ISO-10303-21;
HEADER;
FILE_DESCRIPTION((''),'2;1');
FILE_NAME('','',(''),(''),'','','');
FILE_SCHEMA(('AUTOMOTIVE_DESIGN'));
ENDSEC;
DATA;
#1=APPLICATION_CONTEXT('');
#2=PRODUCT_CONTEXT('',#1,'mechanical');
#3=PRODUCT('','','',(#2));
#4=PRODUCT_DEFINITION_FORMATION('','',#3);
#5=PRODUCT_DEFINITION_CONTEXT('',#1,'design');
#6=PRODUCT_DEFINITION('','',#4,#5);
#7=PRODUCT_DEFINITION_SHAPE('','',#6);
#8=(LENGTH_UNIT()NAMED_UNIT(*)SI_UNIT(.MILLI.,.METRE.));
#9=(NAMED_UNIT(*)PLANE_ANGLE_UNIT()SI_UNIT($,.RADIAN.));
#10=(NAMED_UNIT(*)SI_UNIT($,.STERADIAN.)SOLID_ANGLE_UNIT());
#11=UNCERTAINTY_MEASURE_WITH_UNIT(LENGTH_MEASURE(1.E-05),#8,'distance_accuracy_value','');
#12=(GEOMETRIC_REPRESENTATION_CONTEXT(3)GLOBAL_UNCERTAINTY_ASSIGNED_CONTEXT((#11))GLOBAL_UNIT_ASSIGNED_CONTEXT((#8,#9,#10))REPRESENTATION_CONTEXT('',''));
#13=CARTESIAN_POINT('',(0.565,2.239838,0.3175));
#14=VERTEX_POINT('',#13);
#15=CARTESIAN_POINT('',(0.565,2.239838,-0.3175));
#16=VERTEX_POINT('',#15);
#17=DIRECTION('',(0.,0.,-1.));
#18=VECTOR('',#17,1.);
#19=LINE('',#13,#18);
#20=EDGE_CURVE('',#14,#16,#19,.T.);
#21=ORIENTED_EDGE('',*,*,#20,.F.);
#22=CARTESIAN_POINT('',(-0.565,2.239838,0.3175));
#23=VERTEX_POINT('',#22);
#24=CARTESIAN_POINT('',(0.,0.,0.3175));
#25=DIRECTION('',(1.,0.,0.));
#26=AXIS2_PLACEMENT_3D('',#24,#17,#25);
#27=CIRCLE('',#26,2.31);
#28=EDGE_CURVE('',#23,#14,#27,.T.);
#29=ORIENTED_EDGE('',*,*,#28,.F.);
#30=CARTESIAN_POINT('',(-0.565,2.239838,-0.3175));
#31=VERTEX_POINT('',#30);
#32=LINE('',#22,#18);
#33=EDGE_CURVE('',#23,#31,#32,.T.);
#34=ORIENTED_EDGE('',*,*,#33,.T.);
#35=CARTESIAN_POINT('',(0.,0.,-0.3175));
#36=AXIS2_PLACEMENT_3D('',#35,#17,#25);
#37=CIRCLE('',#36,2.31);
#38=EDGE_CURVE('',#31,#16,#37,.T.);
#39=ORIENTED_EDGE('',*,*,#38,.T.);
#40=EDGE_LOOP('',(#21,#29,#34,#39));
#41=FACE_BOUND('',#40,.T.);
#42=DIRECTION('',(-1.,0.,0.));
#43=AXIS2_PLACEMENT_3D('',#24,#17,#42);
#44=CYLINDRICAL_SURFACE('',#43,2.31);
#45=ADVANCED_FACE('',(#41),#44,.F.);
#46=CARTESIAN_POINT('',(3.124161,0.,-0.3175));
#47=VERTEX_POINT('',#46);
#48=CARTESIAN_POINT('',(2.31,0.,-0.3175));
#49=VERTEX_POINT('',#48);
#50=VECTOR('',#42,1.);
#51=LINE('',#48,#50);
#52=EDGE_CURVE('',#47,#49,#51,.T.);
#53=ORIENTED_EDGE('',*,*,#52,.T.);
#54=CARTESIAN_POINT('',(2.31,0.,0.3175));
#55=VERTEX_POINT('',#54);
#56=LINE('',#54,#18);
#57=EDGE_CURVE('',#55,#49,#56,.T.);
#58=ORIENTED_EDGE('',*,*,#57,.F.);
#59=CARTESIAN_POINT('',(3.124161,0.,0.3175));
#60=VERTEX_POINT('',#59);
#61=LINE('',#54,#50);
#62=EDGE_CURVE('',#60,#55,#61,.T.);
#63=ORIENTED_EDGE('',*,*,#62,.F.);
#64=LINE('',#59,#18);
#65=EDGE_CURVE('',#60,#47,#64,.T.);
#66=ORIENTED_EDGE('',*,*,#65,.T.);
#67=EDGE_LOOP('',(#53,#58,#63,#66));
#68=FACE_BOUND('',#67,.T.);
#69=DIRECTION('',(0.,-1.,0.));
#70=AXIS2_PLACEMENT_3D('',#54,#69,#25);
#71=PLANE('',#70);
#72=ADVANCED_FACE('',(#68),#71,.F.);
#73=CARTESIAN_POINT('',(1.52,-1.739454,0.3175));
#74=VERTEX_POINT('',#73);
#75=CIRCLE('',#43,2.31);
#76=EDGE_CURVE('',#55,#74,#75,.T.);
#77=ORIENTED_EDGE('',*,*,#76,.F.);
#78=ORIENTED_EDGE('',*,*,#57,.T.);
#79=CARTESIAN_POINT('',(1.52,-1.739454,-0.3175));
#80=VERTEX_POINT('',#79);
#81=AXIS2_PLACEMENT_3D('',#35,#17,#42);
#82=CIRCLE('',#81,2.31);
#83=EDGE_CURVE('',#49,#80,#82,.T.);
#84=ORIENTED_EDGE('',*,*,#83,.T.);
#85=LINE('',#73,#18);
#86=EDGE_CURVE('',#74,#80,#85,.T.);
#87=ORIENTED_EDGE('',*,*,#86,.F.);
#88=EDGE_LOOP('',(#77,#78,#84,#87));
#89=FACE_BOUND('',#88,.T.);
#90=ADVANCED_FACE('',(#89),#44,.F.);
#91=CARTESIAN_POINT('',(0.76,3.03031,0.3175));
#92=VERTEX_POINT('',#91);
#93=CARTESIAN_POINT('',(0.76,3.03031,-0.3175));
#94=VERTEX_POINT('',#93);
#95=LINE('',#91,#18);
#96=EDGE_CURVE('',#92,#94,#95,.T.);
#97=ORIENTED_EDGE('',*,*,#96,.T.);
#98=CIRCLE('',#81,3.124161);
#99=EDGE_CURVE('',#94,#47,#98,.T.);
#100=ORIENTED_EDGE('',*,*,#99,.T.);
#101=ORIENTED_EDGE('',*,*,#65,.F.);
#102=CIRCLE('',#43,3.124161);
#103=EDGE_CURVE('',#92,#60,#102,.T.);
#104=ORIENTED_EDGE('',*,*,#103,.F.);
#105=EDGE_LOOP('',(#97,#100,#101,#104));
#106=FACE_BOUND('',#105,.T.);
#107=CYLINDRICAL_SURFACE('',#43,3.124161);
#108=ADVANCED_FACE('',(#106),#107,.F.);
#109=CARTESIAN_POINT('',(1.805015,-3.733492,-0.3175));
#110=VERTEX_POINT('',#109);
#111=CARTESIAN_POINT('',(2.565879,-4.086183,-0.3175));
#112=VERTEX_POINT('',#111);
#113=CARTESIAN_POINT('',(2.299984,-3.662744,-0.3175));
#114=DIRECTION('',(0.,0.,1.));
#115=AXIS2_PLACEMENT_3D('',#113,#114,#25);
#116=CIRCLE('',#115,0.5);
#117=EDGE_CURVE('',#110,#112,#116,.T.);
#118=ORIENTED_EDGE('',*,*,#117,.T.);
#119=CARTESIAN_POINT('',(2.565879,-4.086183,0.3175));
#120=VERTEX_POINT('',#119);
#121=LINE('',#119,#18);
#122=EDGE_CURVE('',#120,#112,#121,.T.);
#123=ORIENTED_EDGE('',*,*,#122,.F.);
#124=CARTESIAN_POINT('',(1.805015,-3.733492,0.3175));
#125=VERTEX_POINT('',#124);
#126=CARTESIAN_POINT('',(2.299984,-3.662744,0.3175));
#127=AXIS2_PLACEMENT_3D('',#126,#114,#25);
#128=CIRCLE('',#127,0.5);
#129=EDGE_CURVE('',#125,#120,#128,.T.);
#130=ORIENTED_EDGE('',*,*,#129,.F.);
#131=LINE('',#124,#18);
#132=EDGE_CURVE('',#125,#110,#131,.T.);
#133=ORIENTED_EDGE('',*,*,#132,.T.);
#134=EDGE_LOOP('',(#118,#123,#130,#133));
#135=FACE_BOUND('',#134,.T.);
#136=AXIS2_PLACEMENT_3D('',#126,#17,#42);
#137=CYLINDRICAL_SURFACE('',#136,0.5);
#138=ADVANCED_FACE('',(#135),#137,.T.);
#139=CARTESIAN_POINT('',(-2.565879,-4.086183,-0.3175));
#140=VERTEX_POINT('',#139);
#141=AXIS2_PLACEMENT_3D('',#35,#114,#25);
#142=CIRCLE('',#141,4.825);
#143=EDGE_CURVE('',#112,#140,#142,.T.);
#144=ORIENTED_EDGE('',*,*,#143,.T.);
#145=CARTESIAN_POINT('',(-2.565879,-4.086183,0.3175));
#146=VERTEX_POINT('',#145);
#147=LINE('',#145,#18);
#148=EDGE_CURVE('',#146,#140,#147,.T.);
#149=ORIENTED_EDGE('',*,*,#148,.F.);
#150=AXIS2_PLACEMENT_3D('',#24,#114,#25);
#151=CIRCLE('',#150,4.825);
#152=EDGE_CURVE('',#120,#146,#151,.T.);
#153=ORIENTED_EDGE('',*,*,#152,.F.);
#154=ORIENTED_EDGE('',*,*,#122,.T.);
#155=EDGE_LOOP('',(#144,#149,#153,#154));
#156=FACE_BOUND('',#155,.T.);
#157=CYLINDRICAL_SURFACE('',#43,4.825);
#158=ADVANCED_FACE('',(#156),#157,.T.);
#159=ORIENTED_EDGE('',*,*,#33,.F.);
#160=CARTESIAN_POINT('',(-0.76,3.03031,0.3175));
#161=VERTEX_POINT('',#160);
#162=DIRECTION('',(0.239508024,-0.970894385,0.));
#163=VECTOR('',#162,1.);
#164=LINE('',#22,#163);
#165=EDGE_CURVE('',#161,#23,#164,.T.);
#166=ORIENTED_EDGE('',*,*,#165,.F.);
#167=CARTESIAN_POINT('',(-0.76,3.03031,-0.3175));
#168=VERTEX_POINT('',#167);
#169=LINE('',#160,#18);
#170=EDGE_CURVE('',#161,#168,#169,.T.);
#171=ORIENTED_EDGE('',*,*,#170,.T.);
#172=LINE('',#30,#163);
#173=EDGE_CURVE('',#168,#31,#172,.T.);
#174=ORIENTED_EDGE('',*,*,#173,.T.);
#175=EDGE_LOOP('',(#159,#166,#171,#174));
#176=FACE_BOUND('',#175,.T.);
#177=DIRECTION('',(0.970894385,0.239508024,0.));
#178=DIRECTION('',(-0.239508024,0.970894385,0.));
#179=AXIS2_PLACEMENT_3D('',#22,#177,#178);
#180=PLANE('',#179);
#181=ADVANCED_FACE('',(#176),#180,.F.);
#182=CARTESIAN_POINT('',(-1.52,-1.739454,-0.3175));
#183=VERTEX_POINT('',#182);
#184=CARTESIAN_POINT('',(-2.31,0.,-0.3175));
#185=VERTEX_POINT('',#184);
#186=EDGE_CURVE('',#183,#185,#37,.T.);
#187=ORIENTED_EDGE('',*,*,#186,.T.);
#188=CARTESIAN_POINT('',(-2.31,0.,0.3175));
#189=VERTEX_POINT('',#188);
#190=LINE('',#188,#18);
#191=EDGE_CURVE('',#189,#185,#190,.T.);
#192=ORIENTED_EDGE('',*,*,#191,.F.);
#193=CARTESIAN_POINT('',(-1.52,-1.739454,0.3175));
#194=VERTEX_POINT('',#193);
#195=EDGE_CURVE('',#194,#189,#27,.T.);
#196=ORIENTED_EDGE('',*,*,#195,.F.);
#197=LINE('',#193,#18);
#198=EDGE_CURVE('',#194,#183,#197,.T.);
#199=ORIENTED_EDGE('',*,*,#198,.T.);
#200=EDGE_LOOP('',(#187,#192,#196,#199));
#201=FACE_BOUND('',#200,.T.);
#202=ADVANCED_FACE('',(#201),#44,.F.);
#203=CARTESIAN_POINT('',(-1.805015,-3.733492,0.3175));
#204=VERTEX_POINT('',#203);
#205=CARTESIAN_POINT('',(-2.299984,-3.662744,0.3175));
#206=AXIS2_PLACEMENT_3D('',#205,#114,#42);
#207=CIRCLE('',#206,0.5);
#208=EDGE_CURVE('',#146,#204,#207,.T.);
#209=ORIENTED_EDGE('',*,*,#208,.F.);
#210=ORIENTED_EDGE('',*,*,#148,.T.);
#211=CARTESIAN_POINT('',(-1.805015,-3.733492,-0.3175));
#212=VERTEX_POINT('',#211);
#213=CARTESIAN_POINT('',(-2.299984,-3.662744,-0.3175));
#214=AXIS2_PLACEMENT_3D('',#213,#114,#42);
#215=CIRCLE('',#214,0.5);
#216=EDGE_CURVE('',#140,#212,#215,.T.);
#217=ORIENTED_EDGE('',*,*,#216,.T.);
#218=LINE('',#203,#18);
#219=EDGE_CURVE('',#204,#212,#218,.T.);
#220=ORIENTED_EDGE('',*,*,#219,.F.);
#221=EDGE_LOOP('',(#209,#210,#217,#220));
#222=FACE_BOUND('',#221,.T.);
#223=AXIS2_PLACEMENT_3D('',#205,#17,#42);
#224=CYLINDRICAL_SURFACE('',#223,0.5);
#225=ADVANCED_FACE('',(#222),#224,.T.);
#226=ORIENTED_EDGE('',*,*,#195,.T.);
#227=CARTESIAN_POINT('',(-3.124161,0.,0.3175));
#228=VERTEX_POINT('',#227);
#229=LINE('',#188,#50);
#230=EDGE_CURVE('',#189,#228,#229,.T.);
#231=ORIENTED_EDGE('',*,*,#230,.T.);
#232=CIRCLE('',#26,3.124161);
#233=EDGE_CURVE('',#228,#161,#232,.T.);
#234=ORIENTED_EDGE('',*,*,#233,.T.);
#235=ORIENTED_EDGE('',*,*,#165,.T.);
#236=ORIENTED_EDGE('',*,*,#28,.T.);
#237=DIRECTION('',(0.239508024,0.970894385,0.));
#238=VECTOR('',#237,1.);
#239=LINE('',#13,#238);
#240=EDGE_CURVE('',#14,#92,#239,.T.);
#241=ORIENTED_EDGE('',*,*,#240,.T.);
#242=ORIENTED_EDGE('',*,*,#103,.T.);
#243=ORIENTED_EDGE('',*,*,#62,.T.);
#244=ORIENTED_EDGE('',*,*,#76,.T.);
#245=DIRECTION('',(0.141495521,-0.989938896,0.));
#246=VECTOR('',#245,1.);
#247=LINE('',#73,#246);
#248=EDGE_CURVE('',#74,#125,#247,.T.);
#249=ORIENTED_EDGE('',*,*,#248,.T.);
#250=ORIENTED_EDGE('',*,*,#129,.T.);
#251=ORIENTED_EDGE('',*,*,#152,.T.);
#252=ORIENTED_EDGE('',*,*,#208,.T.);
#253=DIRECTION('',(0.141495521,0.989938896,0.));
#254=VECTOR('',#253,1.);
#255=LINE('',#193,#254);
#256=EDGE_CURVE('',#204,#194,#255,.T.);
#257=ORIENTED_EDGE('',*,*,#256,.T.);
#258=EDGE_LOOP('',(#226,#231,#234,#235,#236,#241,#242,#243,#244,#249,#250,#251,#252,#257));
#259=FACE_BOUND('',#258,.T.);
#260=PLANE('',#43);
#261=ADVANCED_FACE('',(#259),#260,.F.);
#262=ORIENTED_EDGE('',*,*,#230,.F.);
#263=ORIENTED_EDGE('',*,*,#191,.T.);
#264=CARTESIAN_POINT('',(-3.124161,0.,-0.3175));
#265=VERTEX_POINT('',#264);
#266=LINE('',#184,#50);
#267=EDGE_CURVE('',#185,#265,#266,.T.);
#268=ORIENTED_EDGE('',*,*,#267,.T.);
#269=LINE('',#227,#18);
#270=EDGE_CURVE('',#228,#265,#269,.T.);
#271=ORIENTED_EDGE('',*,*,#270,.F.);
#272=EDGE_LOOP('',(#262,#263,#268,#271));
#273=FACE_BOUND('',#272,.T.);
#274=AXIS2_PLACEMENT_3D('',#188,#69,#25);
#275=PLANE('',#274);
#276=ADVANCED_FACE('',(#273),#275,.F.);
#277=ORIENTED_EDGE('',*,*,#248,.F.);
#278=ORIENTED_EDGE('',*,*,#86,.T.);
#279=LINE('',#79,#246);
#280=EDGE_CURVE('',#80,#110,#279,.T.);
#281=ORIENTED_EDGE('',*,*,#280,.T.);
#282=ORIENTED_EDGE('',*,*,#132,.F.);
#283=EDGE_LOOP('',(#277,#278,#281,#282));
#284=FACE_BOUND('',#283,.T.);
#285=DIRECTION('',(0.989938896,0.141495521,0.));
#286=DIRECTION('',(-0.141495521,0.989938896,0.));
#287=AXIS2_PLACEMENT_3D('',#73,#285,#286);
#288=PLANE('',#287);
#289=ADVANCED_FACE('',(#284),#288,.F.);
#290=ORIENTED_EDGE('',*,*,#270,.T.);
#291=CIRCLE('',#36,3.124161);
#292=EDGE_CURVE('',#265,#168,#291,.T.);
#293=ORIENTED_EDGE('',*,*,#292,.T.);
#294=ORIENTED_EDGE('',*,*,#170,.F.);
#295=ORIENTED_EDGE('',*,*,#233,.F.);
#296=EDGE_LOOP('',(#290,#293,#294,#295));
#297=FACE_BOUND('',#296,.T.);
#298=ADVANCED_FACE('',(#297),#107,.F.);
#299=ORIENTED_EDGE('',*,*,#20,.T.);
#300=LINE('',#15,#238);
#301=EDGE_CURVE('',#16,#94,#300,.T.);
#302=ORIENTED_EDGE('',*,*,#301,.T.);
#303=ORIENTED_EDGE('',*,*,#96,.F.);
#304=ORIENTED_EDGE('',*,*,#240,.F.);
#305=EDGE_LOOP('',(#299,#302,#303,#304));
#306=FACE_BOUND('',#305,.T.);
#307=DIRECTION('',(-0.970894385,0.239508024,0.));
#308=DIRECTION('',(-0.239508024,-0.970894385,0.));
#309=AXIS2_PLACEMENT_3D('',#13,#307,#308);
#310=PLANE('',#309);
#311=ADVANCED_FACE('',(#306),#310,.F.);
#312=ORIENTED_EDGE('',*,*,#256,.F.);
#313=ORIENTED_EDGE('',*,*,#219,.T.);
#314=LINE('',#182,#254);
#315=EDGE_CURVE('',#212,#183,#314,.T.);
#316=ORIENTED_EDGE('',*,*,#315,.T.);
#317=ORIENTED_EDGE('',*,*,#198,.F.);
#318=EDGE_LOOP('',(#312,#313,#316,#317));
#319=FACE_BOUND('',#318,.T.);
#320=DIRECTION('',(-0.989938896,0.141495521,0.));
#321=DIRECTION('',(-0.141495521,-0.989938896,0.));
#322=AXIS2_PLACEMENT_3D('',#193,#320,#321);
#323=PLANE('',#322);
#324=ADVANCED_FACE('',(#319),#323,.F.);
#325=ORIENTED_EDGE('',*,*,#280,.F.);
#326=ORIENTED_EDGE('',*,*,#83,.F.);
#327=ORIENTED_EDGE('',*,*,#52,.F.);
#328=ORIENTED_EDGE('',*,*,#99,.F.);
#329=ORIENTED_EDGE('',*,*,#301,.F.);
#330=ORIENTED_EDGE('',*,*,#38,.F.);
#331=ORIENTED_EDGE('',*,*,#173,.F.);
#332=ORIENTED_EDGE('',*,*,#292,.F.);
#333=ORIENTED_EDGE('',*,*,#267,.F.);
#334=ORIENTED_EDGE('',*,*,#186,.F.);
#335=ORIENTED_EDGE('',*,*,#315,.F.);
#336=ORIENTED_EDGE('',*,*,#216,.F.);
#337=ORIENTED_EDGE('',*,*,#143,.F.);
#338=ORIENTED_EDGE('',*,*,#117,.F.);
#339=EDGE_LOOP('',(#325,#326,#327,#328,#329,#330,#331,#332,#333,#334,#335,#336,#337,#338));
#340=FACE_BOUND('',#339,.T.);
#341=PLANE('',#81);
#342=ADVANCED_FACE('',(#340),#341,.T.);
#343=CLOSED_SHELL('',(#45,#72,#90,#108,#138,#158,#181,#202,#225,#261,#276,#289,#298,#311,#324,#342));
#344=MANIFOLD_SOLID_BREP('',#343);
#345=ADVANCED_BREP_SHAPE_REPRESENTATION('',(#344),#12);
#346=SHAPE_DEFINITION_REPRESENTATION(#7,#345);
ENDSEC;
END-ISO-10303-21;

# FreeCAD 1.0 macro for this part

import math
import FreeCAD as App
import Part
import Sketcher

V = App.Vector
Q = App.Units.Quantity

doc = App.newDocument("Part")
body = doc.addObject("PartDesign::Body", "Body")

# Sketch on XY plane
sketch1 = doc.addObject("Sketcher::SketchObject", "Sketch")
body.addObject(sketch1)
sketch1.AttachmentSupport = (doc.XY_Plane, [""])
sketch1.MapMode = "FlatFace"
sketch1.addGeometry(Part.LineSegment(V(-2.31, 0, 0), V(-3.12, 0, 0)), False)
sketch1.addGeometry(Part.ArcOfCircle(Part.Circle(V(0, 0, 0), V(0, 0, 1), 3.12), math.radians(104), math.radians(180)), False)
sketch1.addGeometry(Part.LineSegment(V(-0.76, 3.03, 0), V(-0.56, 2.24, 0)), False)
sketch1.addGeometry(Part.ArcOfCircle(Part.Circle(V(0, 0, 0), V(0, 0, 1), 2.31), math.radians(76), math.radians(104)), False)
sketch1.addGeometry(Part.LineSegment(V(0.56, 2.24, 0), V(0.76, 3.03, 0)), False)
sketch1.addGeometry(Part.ArcOfCircle(Part.Circle(V(0, 0, 0), V(0, 0, 1), 3.12), math.radians(0), math.radians(76)), False)
sketch1.addGeometry(Part.LineSegment(V(3.12, 0, 0), V(2.31, 0, 0)), False)
sketch1.addGeometry(Part.ArcOfCircle(Part.Circle(V(0, 0, 0), V(0, 0, 1), 2.31), math.radians(-49), math.radians(0)), False)
sketch1.addGeometry(Part.LineSegment(V(1.52, -1.74, 0), V(1.81, -3.73, 0)), False)
sketch1.addGeometry(Part.ArcOfCircle(Part.Circle(V(2.3, -3.66, 0), V(0, 0, 1), 0.5), math.radians(-172), math.radians(-58)), False)
sketch1.addGeometry(Part.ArcOfCircle(Part.Circle(V(0, 0, 0), V(0, 0, 1), 4.83), math.radians(-58), math.radians(238)), False)
sketch1.addGeometry(Part.ArcOfCircle(Part.Circle(V(-2.3, -3.66, 0), V(0, 0, 1), 0.5), math.radians(-122), math.radians(-8)), False)
sketch1.addGeometry(Part.LineSegment(V(-1.81, -3.73, 0), V(-1.52, -1.74, 0)), False)
sketch1.addGeometry(Part.ArcOfCircle(Part.Circle(V(0, 0, 0), V(0, 0, 1), 2.31), math.radians(180), math.radians(229)), False)
sketch1.addConstraint(Sketcher.Constraint("Coincident", 0, 2, 1, 2))
sketch1.addConstraint(Sketcher.Constraint("Coincident", 1, 1, 2, 1))
sketch1.addConstraint(Sketcher.Constraint("Coincident", 2, 2, 3, 2))
sketch1.addConstraint(Sketcher.Constraint("Coincident", 3, 1, 4, 1))
sketch1.addConstraint(Sketcher.Constraint("Coincident", 4, 2, 5, 2))
sketch1.addConstraint(Sketcher.Constraint("Coincident", 5, 1, 6, 1))
sketch1.addConstraint(Sketcher.Constraint("Coincident", 6, 2, 7, 2))
sketch1.addConstraint(Sketcher.Constraint("Coincident", 7, 1, 8, 1))
sketch1.addConstraint(Sketcher.Constraint("Tangent", 8, 2, 9, 1))
sketch1.addConstraint(Sketcher.Constraint("Tangent", 9, 2, 10, 1))
sketch1.addConstraint(Sketcher.Constraint("Tangent", 10, 2, 11, 1))
sketch1.addConstraint(Sketcher.Constraint("Tangent", 11, 2, 12, 1))
sketch1.addConstraint(Sketcher.Constraint("Coincident", 12, 2, 13, 2))
sketch1.addConstraint(Sketcher.Constraint("Coincident", 13, 1, 0, 1))
sketch1.addConstraint(Sketcher.Constraint("Horizontal", 0))
sketch1.addConstraint(Sketcher.Constraint("Horizontal", 6))
sketch1.addConstraint(Sketcher.Constraint("Coincident", 1, 3, -1, 1))
sketch1.addConstraint(Sketcher.Constraint("Coincident", 3, 3, -1, 1))
sketch1.addConstraint(Sketcher.Constraint("Coincident", 5, 3, -1, 1))
sketch1.addConstraint(Sketcher.Constraint("Coincident", 7, 3, -1, 1))
sketch1.addConstraint(Sketcher.Constraint("Coincident", 10, 3, -1, 1))
sketch1.addConstraint(Sketcher.Constraint("Coincident", 13, 3, -1, 1))
sketch1.addConstraint(Sketcher.Constraint("Equal", 1, 5))
sketch1.addConstraint(Sketcher.Constraint("Equal", 3, 7))
sketch1.addConstraint(Sketcher.Constraint("Equal", 9, 11))
sketch1.addConstraint(Sketcher.Constraint("Equal", 7, 13))
sketch1.addConstraint(Sketcher.Constraint("Symmetric", 8, 2, 11, 2, -2))
sketch1.addConstraint(Sketcher.Constraint("PointOnObject", 0, 2, -1))
sketch1.addConstraint(Sketcher.Constraint("PointOnObject", 5, 1, -1))
sketch1.addConstraint(Sketcher.Constraint("Horizontal", 2, 2, 3, 1))
sketch1.addConstraint(Sketcher.Constraint("Horizontal", 1, 1, 4, 2))
sketch1.addConstraint(Sketcher.Constraint("Radius", 9, Q("0.5 mm")))
sketch1.addConstraint(Sketcher.Constraint("Radius", 3, Q("2.31 mm")))
sketch1.addConstraint(Sketcher.Constraint("Radius", 10, Q("4.825 mm")))
sketch1.addConstraint(Sketcher.Constraint("DistanceX", 1, 1, -1, 1, Q("0.76 mm")))
sketch1.addConstraint(Sketcher.Constraint("DistanceX", -1, 1, 7, 1, Q("1.52 mm")))
sketch1.addConstraint(Sketcher.Constraint("Radius", 1, Q("3.124161 mm")))
sketch1.addConstraint(Sketcher.Constraint("DistanceX", 2, 2, 3, 1, Q("1.13 mm")))
sketch1.addConstraint(Sketcher.Constraint("DistanceX", 11, 3, 8, 2, Q("4.105 mm")))
pad1 = doc.addObject("PartDesign::Pad", "Pad")
body.addObject(pad1)
pad1.Profile = sketch1
pad1.Length = 0.635
pad1.Midplane = True

doc.recompute()
